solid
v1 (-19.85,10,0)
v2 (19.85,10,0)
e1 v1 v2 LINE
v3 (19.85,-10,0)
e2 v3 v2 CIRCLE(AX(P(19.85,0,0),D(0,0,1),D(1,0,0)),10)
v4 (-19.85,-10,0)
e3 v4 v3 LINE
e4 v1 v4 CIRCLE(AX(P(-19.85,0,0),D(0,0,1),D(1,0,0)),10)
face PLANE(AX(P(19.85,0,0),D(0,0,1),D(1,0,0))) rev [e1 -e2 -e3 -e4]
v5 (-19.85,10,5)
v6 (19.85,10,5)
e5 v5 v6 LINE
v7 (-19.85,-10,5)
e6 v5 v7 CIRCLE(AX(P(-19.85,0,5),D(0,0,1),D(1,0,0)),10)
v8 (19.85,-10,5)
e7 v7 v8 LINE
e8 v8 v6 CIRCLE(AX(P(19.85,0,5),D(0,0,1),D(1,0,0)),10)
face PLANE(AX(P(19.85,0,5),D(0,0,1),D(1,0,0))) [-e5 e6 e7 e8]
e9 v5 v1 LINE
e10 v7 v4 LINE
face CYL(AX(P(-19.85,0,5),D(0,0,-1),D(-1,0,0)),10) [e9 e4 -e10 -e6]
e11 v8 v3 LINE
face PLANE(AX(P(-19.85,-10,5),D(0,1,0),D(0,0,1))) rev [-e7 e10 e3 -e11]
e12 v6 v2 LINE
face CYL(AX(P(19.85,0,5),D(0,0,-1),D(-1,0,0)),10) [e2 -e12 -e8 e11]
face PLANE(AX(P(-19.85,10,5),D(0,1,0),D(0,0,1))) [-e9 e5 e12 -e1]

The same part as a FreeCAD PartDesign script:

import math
import FreeCAD as App
import Part
import Sketcher

V = App.Vector

doc = App.newDocument("Part")
body = doc.addObject("PartDesign::Body", "Body")

# Sketch on XY plane
sketch1 = body.newObject("Sketcher::SketchObject", "Sketch")
sketch1.AttachmentSupport = (doc.getObject("XY_Plane"), [""])
sketch1.MapMode = "FlatFace"
sketch1.addGeometry([
    Part.LineSegment(V(20, 10, 0), V(-20, 10, 0)),
    Part.ArcOfCircle(Part.Circle(V(-20, 0, 0), V(0, 0, 1), 10), math.radians(90), math.radians(270)),
    Part.LineSegment(V(-20, -10, 0), V(20, -10, 0)),
    Part.ArcOfCircle(Part.Circle(V(20, 0, 0), V(0, 0, 1), 10), math.radians(-90), math.radians(90)),
], False)
sketch1.addConstraint([
    Sketcher.Constraint("Tangent", 0, 2, 1, 1),
    Sketcher.Constraint("Tangent", 1, 2, 2, 1),
    Sketcher.Constraint("Tangent", 2, 2, 3, 1),
    Sketcher.Constraint("Tangent", 3, 2, 0, 1),
    Sketcher.Constraint("Horizontal", 0),
    Sketcher.Constraint("Horizontal", 2),
    Sketcher.Constraint("Symmetric", 1, 3, 3, 3, -1, 1),
    Sketcher.Constraint("Radius", 1, 10.0),
    Sketcher.Constraint("DistanceX", 0, 2, 0, 1, 39.7),
])
pad1 = body.newObject("PartDesign::Pad", "Pad")
pad1.Profile = sketch1
pad1.Length = 5

doc.recompute()
